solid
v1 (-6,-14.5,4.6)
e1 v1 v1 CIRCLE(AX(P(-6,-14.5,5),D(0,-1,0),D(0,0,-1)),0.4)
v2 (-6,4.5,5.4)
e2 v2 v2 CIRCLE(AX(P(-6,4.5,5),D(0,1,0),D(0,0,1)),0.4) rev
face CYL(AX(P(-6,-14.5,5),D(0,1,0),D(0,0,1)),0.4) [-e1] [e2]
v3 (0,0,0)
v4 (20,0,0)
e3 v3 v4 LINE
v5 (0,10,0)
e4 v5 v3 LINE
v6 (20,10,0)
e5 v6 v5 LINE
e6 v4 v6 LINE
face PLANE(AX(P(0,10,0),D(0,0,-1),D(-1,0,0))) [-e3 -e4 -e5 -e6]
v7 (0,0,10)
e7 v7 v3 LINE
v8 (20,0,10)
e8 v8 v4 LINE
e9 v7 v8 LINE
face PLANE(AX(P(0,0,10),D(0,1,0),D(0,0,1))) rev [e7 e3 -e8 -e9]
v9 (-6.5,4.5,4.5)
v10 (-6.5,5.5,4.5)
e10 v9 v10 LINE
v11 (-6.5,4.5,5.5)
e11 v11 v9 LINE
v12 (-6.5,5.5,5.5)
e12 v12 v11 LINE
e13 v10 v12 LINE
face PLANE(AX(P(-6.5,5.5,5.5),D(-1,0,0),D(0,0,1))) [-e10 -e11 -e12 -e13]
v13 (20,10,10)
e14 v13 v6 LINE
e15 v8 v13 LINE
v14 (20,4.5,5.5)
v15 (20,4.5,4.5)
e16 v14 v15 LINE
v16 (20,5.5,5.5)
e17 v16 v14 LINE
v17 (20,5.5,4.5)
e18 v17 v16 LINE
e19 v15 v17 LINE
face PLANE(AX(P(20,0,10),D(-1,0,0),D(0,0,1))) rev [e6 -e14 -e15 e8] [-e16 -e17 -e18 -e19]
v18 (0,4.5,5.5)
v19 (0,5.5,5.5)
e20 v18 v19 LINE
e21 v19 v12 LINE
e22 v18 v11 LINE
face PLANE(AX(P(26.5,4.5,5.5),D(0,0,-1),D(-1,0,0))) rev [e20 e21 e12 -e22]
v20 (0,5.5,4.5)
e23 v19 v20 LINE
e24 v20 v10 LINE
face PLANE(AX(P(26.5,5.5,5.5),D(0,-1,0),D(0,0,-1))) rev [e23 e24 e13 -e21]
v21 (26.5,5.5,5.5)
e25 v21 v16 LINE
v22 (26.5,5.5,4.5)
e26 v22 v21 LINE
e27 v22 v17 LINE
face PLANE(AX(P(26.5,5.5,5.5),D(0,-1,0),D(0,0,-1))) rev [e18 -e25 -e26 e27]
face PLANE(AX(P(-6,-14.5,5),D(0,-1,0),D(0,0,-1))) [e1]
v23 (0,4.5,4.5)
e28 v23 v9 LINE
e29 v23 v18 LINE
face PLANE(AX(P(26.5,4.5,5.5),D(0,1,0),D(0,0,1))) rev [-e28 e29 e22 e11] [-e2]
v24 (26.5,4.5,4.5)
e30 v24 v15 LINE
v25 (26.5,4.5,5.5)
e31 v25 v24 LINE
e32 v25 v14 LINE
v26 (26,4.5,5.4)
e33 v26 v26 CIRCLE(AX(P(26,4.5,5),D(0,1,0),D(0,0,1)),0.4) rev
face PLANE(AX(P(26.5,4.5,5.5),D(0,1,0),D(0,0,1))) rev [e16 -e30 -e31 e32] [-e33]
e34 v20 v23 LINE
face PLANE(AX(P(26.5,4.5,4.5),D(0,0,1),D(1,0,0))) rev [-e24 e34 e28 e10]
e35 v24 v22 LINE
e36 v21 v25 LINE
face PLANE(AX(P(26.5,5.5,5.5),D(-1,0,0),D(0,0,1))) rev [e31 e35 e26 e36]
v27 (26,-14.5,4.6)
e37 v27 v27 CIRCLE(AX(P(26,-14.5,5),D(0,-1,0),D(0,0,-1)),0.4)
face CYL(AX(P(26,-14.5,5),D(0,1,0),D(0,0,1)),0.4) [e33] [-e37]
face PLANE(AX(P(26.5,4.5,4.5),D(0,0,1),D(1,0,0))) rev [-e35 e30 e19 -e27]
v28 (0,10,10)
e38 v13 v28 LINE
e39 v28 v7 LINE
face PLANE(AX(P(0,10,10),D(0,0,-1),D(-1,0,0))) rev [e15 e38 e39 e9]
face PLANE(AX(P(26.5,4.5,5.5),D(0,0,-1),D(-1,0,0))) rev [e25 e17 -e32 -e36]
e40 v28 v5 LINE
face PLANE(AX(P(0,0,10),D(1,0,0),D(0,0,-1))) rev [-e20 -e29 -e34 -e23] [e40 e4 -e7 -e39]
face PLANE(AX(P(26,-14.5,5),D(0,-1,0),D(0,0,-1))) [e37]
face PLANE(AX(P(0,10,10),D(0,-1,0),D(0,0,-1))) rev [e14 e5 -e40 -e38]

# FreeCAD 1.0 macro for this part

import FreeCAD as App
import Part
import Sketcher
Q = App.Units.Quantity

doc = App.newDocument("Part")
body = doc.addObject("PartDesign::Body", "Body")

# Sketch on XY plane
sketch1 = body.newObject("Sketcher::SketchObject", "Sketch")
sketch1.AttachmentSupport = (doc.getObject("XY_Plane"), [""])
sketch1.MapMode = "FlatFace"
sketch1.addGeometry([
    Part.LineSegment(App.Vector(0, 10, 0), App.Vector(0, 0, 0)),
    Part.LineSegment(App.Vector(0, 0, 0), App.Vector(20, 0, 0)),
    Part.LineSegment(App.Vector(20, 0, 0), App.Vector(20, 10, 0)),
    Part.LineSegment(App.Vector(20, 10, 0), App.Vector(0, 10, 0)),
], False)
sketch1.addConstraint([
    Sketcher.Constraint("Coincident", 0, 2, 1, 1),
    Sketcher.Constraint("Coincident", 1, 2, 2, 1),
    Sketcher.Constraint("Coincident", 2, 2, 3, 1),
    Sketcher.Constraint("Coincident", 3, 2, 0, 1),
    Sketcher.Constraint("Vertical", 0),
    Sketcher.Constraint("Horizontal", 1),
    Sketcher.Constraint("Vertical", 2),
    Sketcher.Constraint("Horizontal", 3),
    Sketcher.Constraint("Coincident", 0, 2, -1, 1),
    Sketcher.Constraint("DistanceX", 1, 1, 1, 2, Q("20 mm")),
    Sketcher.Constraint("DistanceY", 0, 2, 0, 1, Q("10 mm")),
])
pad1 = body.newObject("PartDesign::Pad", "Pad")
pad1.Profile = sketch1
pad1.Length = 10

# Sketch on YZ plane
sketch2 = body.newObject("Sketcher::SketchObject", "Sketch001")
sketch2.AttachmentSupport = (doc.getObject("YZ_Plane"), [""])
sketch2.MapMode = "FlatFace"
sketch2.AttachmentOffset = App.Placement(App.Vector(0, 0, 20), App.Rotation())
sketch2.addGeometry([
    Part.LineSegment(App.Vector(5.5, 5.5, 0), App.Vector(4.5, 5.5, 0)),
    Part.LineSegment(App.Vector(4.5, 5.5, 0), App.Vector(4.5, 4.5, 0)),
    Part.LineSegment(App.Vector(4.5, 4.5, 0), App.Vector(5.5, 4.5, 0)),
    Part.LineSegment(App.Vector(5.5, 4.5, 0), App.Vector(5.5, 5.5, 0)),
], False)
sketch2.addConstraint([
    Sketcher.Constraint("Coincident", 0, 2, 1, 1),
    Sketcher.Constraint("Coincident", 1, 2, 2, 1),
    Sketcher.Constraint("Coincident", 2, 2, 3, 1),
    Sketcher.Constraint("Coincident", 3, 2, 0, 1),
    Sketcher.Constraint("Horizontal", 0),
    Sketcher.Constraint("Vertical", 1),
    Sketcher.Constraint("Horizontal", 2),
    Sketcher.Constraint("Vertical", 3),
    Sketcher.Constraint("Equal", 2, 1),
    Sketcher.Constraint("DistanceX", 0, 2, 0, 1, Q("1 mm")),
    Sketcher.Constraint("DistanceX", -1, 1, 0, 2, Q("4.5 mm")),
    Sketcher.Constraint("DistanceY", -1, 1, 0, 2, Q("5.5 mm")),
])
pad2 = body.newObject("PartDesign::Pad", "Pad001")
pad2.Profile = sketch2
pad2.Type = "TwoLengths"
pad2.Length = 6.5
pad2.Length2 = 26.5

# Sketch on XZ plane
sketch3 = body.newObject("Sketcher::SketchObject", "Sketch002")
sketch3.AttachmentSupport = (doc.getObject("XZ_Plane"), [""])
sketch3.MapMode = "FlatFace"
sketch3.AttachmentOffset = App.Placement(App.Vector(0, 0, -4.5), App.Rotation())
sketch3.addGeometry([
    Part.Circle(App.Vector(-6, 5, 0), App.Vector(0, 0, 1), 0.4),
    Part.Circle(App.Vector(26, 5, 0), App.Vector(0, 0, 1), 0.4),
], False)
sketch3.addConstraint([
    Sketcher.Constraint("Equal", 0, 1),
    Sketcher.Constraint("Horizontal", 0, 3, 1, 3),
    Sketcher.Constraint("Diameter", 0, Q("0.8 mm")),
    Sketcher.Constraint("DistanceX", 0, 3, -1, 1, Q("6 mm")),
    Sketcher.Constraint("DistanceY", -1, 1, 0, 3, Q("5 mm")),
    Sketcher.Constraint("DistanceX", -1, 1, 1, 3, Q("26 mm")),
])
pad3 = body.newObject("PartDesign::Pad", "Pad002")
pad3.Profile = sketch3
pad3.Length = 19

doc.recompute()
